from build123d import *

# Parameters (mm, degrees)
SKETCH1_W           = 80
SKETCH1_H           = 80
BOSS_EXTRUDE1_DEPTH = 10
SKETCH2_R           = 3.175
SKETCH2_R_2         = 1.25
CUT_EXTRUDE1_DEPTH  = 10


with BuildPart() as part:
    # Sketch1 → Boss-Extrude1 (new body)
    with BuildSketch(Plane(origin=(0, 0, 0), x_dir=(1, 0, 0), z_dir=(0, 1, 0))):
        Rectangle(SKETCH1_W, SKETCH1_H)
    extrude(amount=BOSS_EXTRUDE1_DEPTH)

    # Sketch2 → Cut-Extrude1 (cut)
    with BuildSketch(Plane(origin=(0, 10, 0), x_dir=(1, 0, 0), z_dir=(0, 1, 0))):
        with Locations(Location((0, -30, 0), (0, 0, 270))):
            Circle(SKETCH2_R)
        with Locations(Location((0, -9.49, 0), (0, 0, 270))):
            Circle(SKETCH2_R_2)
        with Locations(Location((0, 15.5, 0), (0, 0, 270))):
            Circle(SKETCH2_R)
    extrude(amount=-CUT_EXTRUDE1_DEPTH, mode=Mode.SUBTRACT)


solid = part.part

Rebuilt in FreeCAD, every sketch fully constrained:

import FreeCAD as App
import Part
import Sketcher
from FreeCAD import Vector
Q = App.Units.Quantity

doc = App.newDocument("Part")
body = doc.addObject("PartDesign::Body", "Body")

sketch1 = doc.addObject("Sketcher::SketchObject", "Sketch")
body.addObject(sketch1)
sketch1.AttachmentSupport = (doc.XZ_Plane, [""])
sketch1.MapMode = "FlatFace"
sketch1.addGeometry([
    Part.LineSegment(Vector(-40, -40, 0), Vector(-40, 40, 0)),
    Part.LineSegment(Vector(-40, 40, 0), Vector(40, 40, 0)),
    Part.LineSegment(Vector(40, 40, 0), Vector(40, -40, 0)),
    Part.LineSegment(Vector(40, -40, 0), Vector(-40, -40, 0)),
], False)
sketch1.addConstraint([
    Sketcher.Constraint("Coincident", 0, 2, 1, 1),
    Sketcher.Constraint("Coincident", 1, 2, 2, 1),
    Sketcher.Constraint("Coincident", 2, 2, 3, 1),
    Sketcher.Constraint("Coincident", 3, 2, 0, 1),
    Sketcher.Constraint("Vertical", 0),
    Sketcher.Constraint("Horizontal", 1),
    Sketcher.Constraint("Vertical", 2),
    Sketcher.Constraint("Horizontal", 3),
    Sketcher.Constraint("Symmetric", 0, 2, 2, 2, -1, 1),
    Sketcher.Constraint("Equal", 3, 0),
    Sketcher.Constraint("DistanceX", 1, 1, 1, 2, Q("80 mm")),
])
pad1 = doc.addObject("PartDesign::Pad", "Pad")
body.addObject(pad1)
pad1.Profile = sketch1
pad1.Length = 10
pad1.Reversed = True

sketch2 = doc.addObject("Sketcher::SketchObject", "Sketch001")
body.addObject(sketch2)
sketch2.AttachmentSupport = (doc.XZ_Plane, [""])
sketch2.MapMode = "FlatFace"
sketch2.AttachmentOffset = App.Placement(Vector(0, 0, -10), App.Rotation())
sketch2.addGeometry([
    Part.Circle(Vector(0, 30, 0), Vector(0, 0, 1), 3.2),
    Part.Circle(Vector(0, 9.5, 0), Vector(0, 0, 1), 1.2),
    Part.Circle(Vector(0, -15.5, 0), Vector(0, 0, 1), 3.2),
], False)
sketch2.addConstraint([
    Sketcher.Constraint("Equal", 0, 2),
    Sketcher.Constraint("PointOnObject", 0, 3, -2),
    Sketcher.Constraint("PointOnObject", 1, 3, -2),
    Sketcher.Constraint("PointOnObject", 2, 3, -2),
    Sketcher.Constraint("Diameter", 1, Q("2.5 mm")),
    Sketcher.Constraint("Diameter", 0, Q("6.35 mm")),
    Sketcher.Constraint("DistanceY", -1, 1, 0, 3, Q("30 mm")),
    Sketcher.Constraint("DistanceY", 2, 3, -1, 1, Q("15.5 mm")),
    Sketcher.Constraint("DistanceY", -1, 1, 1, 3, Q("9.49 mm")),
])
pocket1 = doc.addObject("PartDesign::Pocket", "Pocket")
body.addObject(pocket1)
pocket1.Profile = sketch2
pocket1.Length = 10
pocket1.Reversed = True

doc.recompute()
